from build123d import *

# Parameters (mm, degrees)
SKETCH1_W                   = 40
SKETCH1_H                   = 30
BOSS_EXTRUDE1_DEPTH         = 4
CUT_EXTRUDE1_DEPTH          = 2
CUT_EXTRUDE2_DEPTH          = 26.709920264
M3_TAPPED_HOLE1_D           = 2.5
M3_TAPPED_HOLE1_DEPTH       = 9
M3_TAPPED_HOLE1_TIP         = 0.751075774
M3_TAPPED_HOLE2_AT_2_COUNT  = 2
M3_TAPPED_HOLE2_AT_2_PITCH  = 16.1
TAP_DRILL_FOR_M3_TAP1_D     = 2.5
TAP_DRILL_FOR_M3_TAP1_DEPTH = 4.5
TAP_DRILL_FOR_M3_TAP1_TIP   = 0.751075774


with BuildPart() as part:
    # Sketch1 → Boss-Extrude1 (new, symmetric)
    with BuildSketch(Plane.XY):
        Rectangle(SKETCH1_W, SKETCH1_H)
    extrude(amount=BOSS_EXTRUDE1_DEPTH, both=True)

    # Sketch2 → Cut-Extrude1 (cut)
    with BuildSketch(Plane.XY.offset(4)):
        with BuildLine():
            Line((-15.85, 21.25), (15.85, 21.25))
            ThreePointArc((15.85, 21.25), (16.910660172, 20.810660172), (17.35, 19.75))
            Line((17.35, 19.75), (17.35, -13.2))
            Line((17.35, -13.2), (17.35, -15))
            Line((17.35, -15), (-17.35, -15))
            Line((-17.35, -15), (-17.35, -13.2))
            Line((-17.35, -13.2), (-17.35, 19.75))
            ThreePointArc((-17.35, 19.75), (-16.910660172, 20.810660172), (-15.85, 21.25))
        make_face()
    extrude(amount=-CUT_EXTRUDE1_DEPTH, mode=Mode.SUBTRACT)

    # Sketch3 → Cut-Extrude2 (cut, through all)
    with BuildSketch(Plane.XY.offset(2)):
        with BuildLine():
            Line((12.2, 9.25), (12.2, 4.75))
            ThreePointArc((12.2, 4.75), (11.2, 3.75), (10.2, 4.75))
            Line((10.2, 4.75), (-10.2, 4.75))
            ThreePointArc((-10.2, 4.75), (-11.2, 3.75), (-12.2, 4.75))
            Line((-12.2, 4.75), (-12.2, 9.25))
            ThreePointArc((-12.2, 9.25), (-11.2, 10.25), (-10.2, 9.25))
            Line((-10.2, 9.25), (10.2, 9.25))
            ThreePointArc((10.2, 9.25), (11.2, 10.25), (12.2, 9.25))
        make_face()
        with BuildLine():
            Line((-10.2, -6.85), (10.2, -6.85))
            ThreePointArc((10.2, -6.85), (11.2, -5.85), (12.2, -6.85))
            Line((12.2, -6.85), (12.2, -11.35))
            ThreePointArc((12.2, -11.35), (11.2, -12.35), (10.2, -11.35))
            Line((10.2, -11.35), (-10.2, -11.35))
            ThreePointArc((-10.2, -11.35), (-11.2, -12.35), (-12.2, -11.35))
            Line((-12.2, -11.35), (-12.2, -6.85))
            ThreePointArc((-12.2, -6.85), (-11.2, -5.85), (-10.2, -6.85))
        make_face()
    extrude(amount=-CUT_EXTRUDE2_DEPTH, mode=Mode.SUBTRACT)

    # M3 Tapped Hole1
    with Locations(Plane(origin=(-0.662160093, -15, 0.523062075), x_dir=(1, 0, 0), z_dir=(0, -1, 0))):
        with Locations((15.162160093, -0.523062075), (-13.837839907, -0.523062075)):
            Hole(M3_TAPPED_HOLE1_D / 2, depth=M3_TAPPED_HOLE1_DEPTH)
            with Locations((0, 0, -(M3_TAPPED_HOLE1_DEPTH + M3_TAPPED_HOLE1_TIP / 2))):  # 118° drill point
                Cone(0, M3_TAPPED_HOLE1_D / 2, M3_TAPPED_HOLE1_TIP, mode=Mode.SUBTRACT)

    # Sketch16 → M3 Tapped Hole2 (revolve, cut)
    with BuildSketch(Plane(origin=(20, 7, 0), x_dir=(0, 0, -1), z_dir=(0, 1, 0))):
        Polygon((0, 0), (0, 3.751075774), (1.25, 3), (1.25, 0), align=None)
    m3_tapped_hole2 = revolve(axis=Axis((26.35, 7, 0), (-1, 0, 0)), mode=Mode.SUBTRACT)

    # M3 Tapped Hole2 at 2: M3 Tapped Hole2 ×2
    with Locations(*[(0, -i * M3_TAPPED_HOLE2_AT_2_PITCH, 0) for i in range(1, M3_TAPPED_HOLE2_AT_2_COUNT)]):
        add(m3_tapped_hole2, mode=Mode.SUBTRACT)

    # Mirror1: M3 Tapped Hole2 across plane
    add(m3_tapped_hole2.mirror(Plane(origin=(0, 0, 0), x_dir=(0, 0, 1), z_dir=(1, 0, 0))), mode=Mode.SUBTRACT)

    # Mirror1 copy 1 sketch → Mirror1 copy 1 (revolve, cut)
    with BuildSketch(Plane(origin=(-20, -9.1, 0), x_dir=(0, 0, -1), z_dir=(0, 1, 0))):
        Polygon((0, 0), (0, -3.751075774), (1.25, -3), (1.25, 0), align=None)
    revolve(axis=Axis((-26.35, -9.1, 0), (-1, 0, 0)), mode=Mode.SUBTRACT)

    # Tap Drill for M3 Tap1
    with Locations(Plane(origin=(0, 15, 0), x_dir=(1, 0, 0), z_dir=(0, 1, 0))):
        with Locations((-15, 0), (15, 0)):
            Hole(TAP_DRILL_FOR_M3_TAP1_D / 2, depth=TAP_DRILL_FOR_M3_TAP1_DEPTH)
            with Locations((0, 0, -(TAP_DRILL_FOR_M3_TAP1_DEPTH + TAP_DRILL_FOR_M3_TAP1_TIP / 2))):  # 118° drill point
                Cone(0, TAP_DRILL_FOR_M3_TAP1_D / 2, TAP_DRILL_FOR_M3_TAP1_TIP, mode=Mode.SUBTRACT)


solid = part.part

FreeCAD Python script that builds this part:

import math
import FreeCAD as App
import Part
import Sketcher

V = App.Vector
Q = App.Units.Quantity


def add_polygon(sketch, points):
    """Adds a closed chain of lines whose ends are joined by coincident constraints."""
    first, n = sketch.GeometryCount, len(points)
    for a, b in zip(points, points[1:] + points[:1]):
        sketch.addGeometry(Part.LineSegment(App.Vector(*a, 0), App.Vector(*b, 0)), False)
    for i in range(n):
        sketch.addConstraint(Sketcher.Constraint("Coincident", first + i, 2, first + (i + 1) % n, 1))

doc = App.newDocument("Part")
body = doc.addObject("PartDesign::Body", "Body")

sketch1 = body.newObject("Sketcher::SketchObject", "Sketch")
sketch1.AttachmentSupport = (doc.getObject("XY_Plane"), [""])
sketch1.MapMode = "FlatFace"
add_polygon(sketch1, [(-20, 15), (-20, -15), (20, -15), (20, 15)])
sketch1.addConstraint([
    Sketcher.Constraint("Vertical", 0),
    Sketcher.Constraint("Horizontal", 1),
    Sketcher.Constraint("Vertical", 2),
    Sketcher.Constraint("Horizontal", 3),
    Sketcher.Constraint("Symmetric", 0, 2, 2, 2, -1, 1),
    Sketcher.Constraint("DistanceX", 1, 1, 1, 2, Q("40 mm")),
    Sketcher.Constraint("DistanceY", 0, 2, 0, 1, Q("30 mm")),
])
pad1 = body.newObject("PartDesign::Pad", "Pad")
pad1.Profile = sketch1
pad1.Length = 8
pad1.Midplane = True

sketch2 = body.newObject("Sketcher::SketchObject", "Sketch001")
sketch2.AttachmentSupport = (doc.getObject("XY_Plane"), [""])
sketch2.MapMode = "FlatFace"
sketch2.AttachmentOffset = App.Placement(V(0, 0, 4), App.Rotation())
sketch2.addGeometry([
    Part.LineSegment(V(15.8, 21.2, 0), V(-15.8, 21.2, 0)),
    Part.ArcOfCircle(Part.Circle(V(-15.9, 19.8, 0), V(0, 0, 1), 1.5), math.radians(90), math.radians(180)),
    Part.LineSegment(V(-17.4, 19.8, 0), V(-17.4, -15, 0)),
    Part.LineSegment(V(-17.4, -15, 0), V(17.4, -15, 0)),
    Part.LineSegment(V(17.4, -15, 0), V(17.4, 19.8, 0)),
    Part.ArcOfCircle(Part.Circle(V(15.9, 19.8, 0), V(0, 0, 1), 1.5), math.radians(0), math.radians(90)),
], False)
sketch2.addConstraint([
    Sketcher.Constraint("Tangent", 0, 2, 1, 1),
    Sketcher.Constraint("Tangent", 1, 2, 2, 1),
    Sketcher.Constraint("Coincident", 2, 2, 3, 1),
    Sketcher.Constraint("Coincident", 3, 2, 4, 1),
    Sketcher.Constraint("Tangent", 4, 2, 5, 1),
    Sketcher.Constraint("Tangent", 5, 2, 0, 1),
    Sketcher.Constraint("Horizontal", 0),
    Sketcher.Constraint("Vertical", 2),
    Sketcher.Constraint("Horizontal", 3),
    Sketcher.Constraint("Vertical", 4),
    Sketcher.Constraint("Equal", 1, 5),
    Sketcher.Constraint("Radius", 1, Q("1.5 mm")),
    Sketcher.Constraint("DistanceX", 0, 2, 0, 1, Q("31.7 mm")),
    Sketcher.Constraint("DistanceY", 2, 2, -1, 1, Q("15 mm")),
    Sketcher.Constraint("DistanceY", 2, 2, 2, 1, Q("34.75 mm")),
    Sketcher.Constraint("DistanceX", 1, 3, -1, 1, Q("15.85 mm")),
])
pocket1 = body.newObject("PartDesign::Pocket", "Pocket")
pocket1.Profile = sketch2
pocket1.Length = 2

sketch3 = body.newObject("Sketcher::SketchObject", "Sketch002")
sketch3.AttachmentSupport = (doc.getObject("XY_Plane"), [""])
sketch3.MapMode = "FlatFace"
sketch3.AttachmentOffset = App.Placement(V(0, 0, 2), App.Rotation())
sketch3.addGeometry([
    Part.LineSegment(V(12.2, 4.8, 0), V(12.2, 9.2, 0)),
    Part.ArcOfCircle(Part.Circle(V(11.2, 9.2, 0), V(0, 0, 1), 1), math.radians(0), math.radians(180)),
    Part.LineSegment(V(10.2, 9.2, 0), V(-10.2, 9.2, 0)),
    Part.ArcOfCircle(Part.Circle(V(-11.2, 9.2, 0), V(0, 0, 1), 1), math.radians(0), math.radians(180)),
    Part.LineSegment(V(-12.2, 9.2, 0), V(-12.2, 4.8, 0)),
    Part.ArcOfCircle(Part.Circle(V(-11.2, 4.8, 0), V(0, 0, 1), 1), math.radians(180), math.radians(360)),
    Part.LineSegment(V(-10.2, 4.8, 0), V(10.2, 4.8, 0)),
    Part.ArcOfCircle(Part.Circle(V(11.2, 4.8, 0), V(0, 0, 1), 1), math.radians(180), math.radians(360)),
    Part.LineSegment(V(10.2, -6.8, 0), V(-10.2, -6.8, 0)),
    Part.ArcOfCircle(Part.Circle(V(-11.2, -6.8, 0), V(0, 0, 1), 1), math.radians(0), math.radians(180)),
    Part.LineSegment(V(-12.2, -6.8, 0), V(-12.2, -11.3, 0)),
    Part.ArcOfCircle(Part.Circle(V(-11.2, -11.3, 0), V(0, 0, 1), 1), math.radians(180), math.radians(360)),
    Part.LineSegment(V(-10.2, -11.3, 0), V(10.2, -11.3, 0)),
    Part.ArcOfCircle(Part.Circle(V(11.2, -11.3, 0), V(0, 0, 1), 1), math.radians(180), math.radians(360)),
    Part.LineSegment(V(12.2, -11.3, 0), V(12.2, -6.8, 0)),
    Part.ArcOfCircle(Part.Circle(V(11.2, -6.8, 0), V(0, 0, 1), 1), math.radians(0), math.radians(180)),
], False)
sketch3.addConstraint([
    Sketcher.Constraint("Tangent", 0, 2, 1, 1),
    Sketcher.Constraint("Coincident", 1, 2, 2, 1),
    Sketcher.Constraint("Coincident", 2, 2, 3, 1),
    Sketcher.Constraint("Tangent", 3, 2, 4, 1),
    Sketcher.Constraint("Tangent", 4, 2, 5, 1),
    Sketcher.Constraint("Coincident", 5, 2, 6, 1),
    Sketcher.Constraint("Coincident", 6, 2, 7, 1),
    Sketcher.Constraint("Tangent", 7, 2, 0, 1),
    Sketcher.Constraint("Coincident", 8, 2, 9, 1),
    Sketcher.Constraint("Tangent", 9, 2, 10, 1),
    Sketcher.Constraint("Tangent", 10, 2, 11, 1),
    Sketcher.Constraint("Coincident", 11, 2, 12, 1),
    Sketcher.Constraint("Coincident", 12, 2, 13, 1),
    Sketcher.Constraint("Tangent", 13, 2, 14, 1),
    Sketcher.Constraint("Tangent", 14, 2, 15, 1),
    Sketcher.Constraint("Coincident", 15, 2, 8, 1),
    Sketcher.Constraint("Vertical", 0),
    Sketcher.Constraint("Horizontal", 2),
    Sketcher.Constraint("Vertical", 4),
    Sketcher.Constraint("Horizontal", 6),
    Sketcher.Constraint("Horizontal", 8),
    Sketcher.Constraint("Vertical", 10),
    Sketcher.Constraint("Horizontal", 12),
    Sketcher.Constraint("Vertical", 14),
    Sketcher.Constraint("Equal", 1, 3),
    Sketcher.Constraint("Equal", 3, 5),
    Sketcher.Constraint("Equal", 5, 7),
    Sketcher.Constraint("Equal", 7, 9),
    Sketcher.Constraint("Equal", 9, 11),
    Sketcher.Constraint("Equal", 11, 13),
    Sketcher.Constraint("Equal", 13, 15),
    Sketcher.Constraint("Symmetric", 1, 3, 3, 3, -2),
    Sketcher.Constraint("Symmetric", 11, 3, 13, 3, -2),
    Sketcher.Constraint("Horizontal", 5, 3, 7, 3),
    Sketcher.Constraint("Horizontal", 9, 3, 15, 3),
    Sketcher.Constraint("Horizontal", 0, 2, 1, 2),
    Sketcher.Constraint("Horizontal", 4, 2, 5, 2),
    Sketcher.Constraint("Horizontal", 15, 3, 8, 2),
    Sketcher.Constraint("Horizontal", 10, 2, 11, 2),
    Sketcher.Constraint("Vertical", 5, 3, 9, 3),
    Sketcher.Constraint("Equal", 4, 10),
    Sketcher.Constraint("Radius", 1, Q("1 mm")),
    Sketcher.Constraint("DistanceX", 2, 2, 2, 1, Q("20.4 mm")),
    Sketcher.Constraint("DistanceY", 0, 1, 0, 2, Q("4.5 mm")),
    Sketcher.Constraint("DistanceY", 9, 3, 5, 3, Q("11.6 mm")),
    Sketcher.Constraint("DistanceY", -1, 1, 1, 3, Q("9.25 mm")),
])
pocket2 = body.newObject("PartDesign::Pocket", "Pocket001")
pocket2.Profile = sketch3
pocket2.Type = "ThroughAll"

sketch4 = body.newObject("Sketcher::SketchObject", "Sketch003")
sketch4.AttachmentSupport = (doc.getObject("XZ_Plane"), [""])
sketch4.MapMode = "FlatFace"
sketch4.AttachmentOffset = App.Placement(V(0, 0, 15), App.Rotation())
sketch4.addGeometry([
    Part.Circle(V(14.5, 0, 0), V(0, 0, 1), 1.2),
    Part.Circle(V(-14.5, 0, 0), V(0, 0, 1), 1.2),
], False)
sketch4.addConstraint([
    Sketcher.Constraint("Equal", 0, 1),
    Sketcher.Constraint("Symmetric", 0, 3, 1, 3, -1, 1),
    Sketcher.Constraint("PointOnObject", 0, 3, -1),
    Sketcher.Constraint("Diameter", 0, Q("2.5 mm")),
    Sketcher.Constraint("DistanceX", 1, 3, 0, 3, Q("29 mm")),
])
doc.recompute()
hole = body.newObject("PartDesign::Hole", "Hole")
hole.Profile = sketch4
hole.ThreadType = "None"
hole.Diameter = 2.5
hole.DepthType = "Dimension"
hole.Depth = 9
hole.DrillPoint = "Angled"
hole.DrillPointAngle = 118

sketch5 = body.newObject("Sketcher::SketchObject", "Sketch004")
sketch5.AttachmentSupport = (doc.getObject("XZ_Plane"), [""])
sketch5.MapMode = "FlatFace"
sketch5.AttachmentOffset = App.Placement(V(0, 0, -7), App.Rotation())
add_polygon(sketch5, [(16.2, 0), (20, 0), (20, -1.2), (17, -1.2)])
sketch5.addConstraint([
    Sketcher.Constraint("Horizontal", 0),
    Sketcher.Constraint("Vertical", 1),
    Sketcher.Constraint("Horizontal", 2),
    Sketcher.Constraint("PointOnObject", 0, 2, -1),
    Sketcher.Constraint("DistanceX", 2, 2, 2, 1, Q("3 mm")),
    Sketcher.Constraint("Angle", 3, Q("121 deg")),
    Sketcher.Constraint("DistanceX", -1, 1, 0, 2, Q("20 mm")),
    Sketcher.Constraint("DistanceY", 1, 2, 1, 1, Q("1.25 mm")),
])
groove = body.newObject("PartDesign::Groove", "Groove")
groove.Profile = sketch5
groove.ReferenceAxis = (sketch5, ["H_Axis"])
groove.Angle = 360
doc.recompute()

linearpattern = body.newObject("PartDesign::LinearPattern", "LinearPattern")
linearpattern.Originals = [groove]
linearpattern.Direction = (doc.getObject("Y_Axis"), [""])
linearpattern.Mode = "offset"
linearpattern.Offset = 16.1
linearpattern.Occurrences = 2
linearpattern.Reversed = True
body.Tip = linearpattern
doc.recompute()

mirrored = body.newObject("PartDesign::Mirrored", "Mirrored")
mirrored.Originals = [groove]
mirrored.MirrorPlane = (doc.getObject("YZ_Plane"), [""])
body.Tip = mirrored

sketch6 = body.newObject("Sketcher::SketchObject", "Sketch005")
sketch6.AttachmentSupport = (doc.getObject("XZ_Plane"), [""])
sketch6.MapMode = "FlatFace"
sketch6.AttachmentOffset = App.Placement(V(0, 0, 9.1), App.Rotation())
add_polygon(sketch6, [(-20, 0), (-16.2, 0), (-17, -1.2), (-20, -1.2)])
sketch6.addConstraint([
    Sketcher.Constraint("Horizontal", 0),
    Sketcher.Constraint("Horizontal", 2),
    Sketcher.Constraint("Vertical", 3),
    Sketcher.Constraint("PointOnObject", 0, 2, -1),
    Sketcher.Constraint("DistanceX", 2, 2, 2, 1, Q("3 mm")),
    Sketcher.Constraint("Angle", 1, Q("-121 deg")),
    Sketcher.Constraint("DistanceX", 1, 2, -1, 1, Q("17 mm")),
    Sketcher.Constraint("DistanceY", 3, 1, 3, 2, Q("1.25 mm")),
])
groove2 = body.newObject("PartDesign::Groove", "Groove001")
groove2.Profile = sketch6
groove2.ReferenceAxis = (sketch6, ["H_Axis"])
groove2.Angle = 360

sketch7 = body.newObject("Sketcher::SketchObject", "Sketch006")
sketch7.AttachmentSupport = (doc.getObject("XZ_Plane"), [""])
sketch7.MapMode = "FlatFace"
sketch7.AttachmentOffset = App.Placement(V(0, 0, -15), App.Rotation())
sketch7.addGeometry([
    Part.Circle(V(-15, 0, 0), V(0, 0, 1), 1.2),
    Part.Circle(V(15, 0, 0), V(0, 0, 1), 1.2),
], False)
sketch7.addConstraint([
    Sketcher.Constraint("Equal", 0, 1),
    Sketcher.Constraint("Symmetric", 0, 3, 1, 3, -1, 1),
    Sketcher.Constraint("PointOnObject", 0, 3, -1),
    Sketcher.Constraint("Diameter", 0, Q("2.5 mm")),
    Sketcher.Constraint("DistanceX", 0, 3, -1, 1, Q("15 mm")),
])
doc.recompute()
hole2 = body.newObject("PartDesign::Hole", "Hole001")
hole2.Profile = sketch7
hole2.ThreadType = "None"
hole2.Diameter = 2.5
hole2.DepthType = "Dimension"
hole2.Depth = 4.5
hole2.DrillPoint = "Angled"
hole2.DrillPointAngle = 118
hole2.Reversed = True

doc.recompute()
